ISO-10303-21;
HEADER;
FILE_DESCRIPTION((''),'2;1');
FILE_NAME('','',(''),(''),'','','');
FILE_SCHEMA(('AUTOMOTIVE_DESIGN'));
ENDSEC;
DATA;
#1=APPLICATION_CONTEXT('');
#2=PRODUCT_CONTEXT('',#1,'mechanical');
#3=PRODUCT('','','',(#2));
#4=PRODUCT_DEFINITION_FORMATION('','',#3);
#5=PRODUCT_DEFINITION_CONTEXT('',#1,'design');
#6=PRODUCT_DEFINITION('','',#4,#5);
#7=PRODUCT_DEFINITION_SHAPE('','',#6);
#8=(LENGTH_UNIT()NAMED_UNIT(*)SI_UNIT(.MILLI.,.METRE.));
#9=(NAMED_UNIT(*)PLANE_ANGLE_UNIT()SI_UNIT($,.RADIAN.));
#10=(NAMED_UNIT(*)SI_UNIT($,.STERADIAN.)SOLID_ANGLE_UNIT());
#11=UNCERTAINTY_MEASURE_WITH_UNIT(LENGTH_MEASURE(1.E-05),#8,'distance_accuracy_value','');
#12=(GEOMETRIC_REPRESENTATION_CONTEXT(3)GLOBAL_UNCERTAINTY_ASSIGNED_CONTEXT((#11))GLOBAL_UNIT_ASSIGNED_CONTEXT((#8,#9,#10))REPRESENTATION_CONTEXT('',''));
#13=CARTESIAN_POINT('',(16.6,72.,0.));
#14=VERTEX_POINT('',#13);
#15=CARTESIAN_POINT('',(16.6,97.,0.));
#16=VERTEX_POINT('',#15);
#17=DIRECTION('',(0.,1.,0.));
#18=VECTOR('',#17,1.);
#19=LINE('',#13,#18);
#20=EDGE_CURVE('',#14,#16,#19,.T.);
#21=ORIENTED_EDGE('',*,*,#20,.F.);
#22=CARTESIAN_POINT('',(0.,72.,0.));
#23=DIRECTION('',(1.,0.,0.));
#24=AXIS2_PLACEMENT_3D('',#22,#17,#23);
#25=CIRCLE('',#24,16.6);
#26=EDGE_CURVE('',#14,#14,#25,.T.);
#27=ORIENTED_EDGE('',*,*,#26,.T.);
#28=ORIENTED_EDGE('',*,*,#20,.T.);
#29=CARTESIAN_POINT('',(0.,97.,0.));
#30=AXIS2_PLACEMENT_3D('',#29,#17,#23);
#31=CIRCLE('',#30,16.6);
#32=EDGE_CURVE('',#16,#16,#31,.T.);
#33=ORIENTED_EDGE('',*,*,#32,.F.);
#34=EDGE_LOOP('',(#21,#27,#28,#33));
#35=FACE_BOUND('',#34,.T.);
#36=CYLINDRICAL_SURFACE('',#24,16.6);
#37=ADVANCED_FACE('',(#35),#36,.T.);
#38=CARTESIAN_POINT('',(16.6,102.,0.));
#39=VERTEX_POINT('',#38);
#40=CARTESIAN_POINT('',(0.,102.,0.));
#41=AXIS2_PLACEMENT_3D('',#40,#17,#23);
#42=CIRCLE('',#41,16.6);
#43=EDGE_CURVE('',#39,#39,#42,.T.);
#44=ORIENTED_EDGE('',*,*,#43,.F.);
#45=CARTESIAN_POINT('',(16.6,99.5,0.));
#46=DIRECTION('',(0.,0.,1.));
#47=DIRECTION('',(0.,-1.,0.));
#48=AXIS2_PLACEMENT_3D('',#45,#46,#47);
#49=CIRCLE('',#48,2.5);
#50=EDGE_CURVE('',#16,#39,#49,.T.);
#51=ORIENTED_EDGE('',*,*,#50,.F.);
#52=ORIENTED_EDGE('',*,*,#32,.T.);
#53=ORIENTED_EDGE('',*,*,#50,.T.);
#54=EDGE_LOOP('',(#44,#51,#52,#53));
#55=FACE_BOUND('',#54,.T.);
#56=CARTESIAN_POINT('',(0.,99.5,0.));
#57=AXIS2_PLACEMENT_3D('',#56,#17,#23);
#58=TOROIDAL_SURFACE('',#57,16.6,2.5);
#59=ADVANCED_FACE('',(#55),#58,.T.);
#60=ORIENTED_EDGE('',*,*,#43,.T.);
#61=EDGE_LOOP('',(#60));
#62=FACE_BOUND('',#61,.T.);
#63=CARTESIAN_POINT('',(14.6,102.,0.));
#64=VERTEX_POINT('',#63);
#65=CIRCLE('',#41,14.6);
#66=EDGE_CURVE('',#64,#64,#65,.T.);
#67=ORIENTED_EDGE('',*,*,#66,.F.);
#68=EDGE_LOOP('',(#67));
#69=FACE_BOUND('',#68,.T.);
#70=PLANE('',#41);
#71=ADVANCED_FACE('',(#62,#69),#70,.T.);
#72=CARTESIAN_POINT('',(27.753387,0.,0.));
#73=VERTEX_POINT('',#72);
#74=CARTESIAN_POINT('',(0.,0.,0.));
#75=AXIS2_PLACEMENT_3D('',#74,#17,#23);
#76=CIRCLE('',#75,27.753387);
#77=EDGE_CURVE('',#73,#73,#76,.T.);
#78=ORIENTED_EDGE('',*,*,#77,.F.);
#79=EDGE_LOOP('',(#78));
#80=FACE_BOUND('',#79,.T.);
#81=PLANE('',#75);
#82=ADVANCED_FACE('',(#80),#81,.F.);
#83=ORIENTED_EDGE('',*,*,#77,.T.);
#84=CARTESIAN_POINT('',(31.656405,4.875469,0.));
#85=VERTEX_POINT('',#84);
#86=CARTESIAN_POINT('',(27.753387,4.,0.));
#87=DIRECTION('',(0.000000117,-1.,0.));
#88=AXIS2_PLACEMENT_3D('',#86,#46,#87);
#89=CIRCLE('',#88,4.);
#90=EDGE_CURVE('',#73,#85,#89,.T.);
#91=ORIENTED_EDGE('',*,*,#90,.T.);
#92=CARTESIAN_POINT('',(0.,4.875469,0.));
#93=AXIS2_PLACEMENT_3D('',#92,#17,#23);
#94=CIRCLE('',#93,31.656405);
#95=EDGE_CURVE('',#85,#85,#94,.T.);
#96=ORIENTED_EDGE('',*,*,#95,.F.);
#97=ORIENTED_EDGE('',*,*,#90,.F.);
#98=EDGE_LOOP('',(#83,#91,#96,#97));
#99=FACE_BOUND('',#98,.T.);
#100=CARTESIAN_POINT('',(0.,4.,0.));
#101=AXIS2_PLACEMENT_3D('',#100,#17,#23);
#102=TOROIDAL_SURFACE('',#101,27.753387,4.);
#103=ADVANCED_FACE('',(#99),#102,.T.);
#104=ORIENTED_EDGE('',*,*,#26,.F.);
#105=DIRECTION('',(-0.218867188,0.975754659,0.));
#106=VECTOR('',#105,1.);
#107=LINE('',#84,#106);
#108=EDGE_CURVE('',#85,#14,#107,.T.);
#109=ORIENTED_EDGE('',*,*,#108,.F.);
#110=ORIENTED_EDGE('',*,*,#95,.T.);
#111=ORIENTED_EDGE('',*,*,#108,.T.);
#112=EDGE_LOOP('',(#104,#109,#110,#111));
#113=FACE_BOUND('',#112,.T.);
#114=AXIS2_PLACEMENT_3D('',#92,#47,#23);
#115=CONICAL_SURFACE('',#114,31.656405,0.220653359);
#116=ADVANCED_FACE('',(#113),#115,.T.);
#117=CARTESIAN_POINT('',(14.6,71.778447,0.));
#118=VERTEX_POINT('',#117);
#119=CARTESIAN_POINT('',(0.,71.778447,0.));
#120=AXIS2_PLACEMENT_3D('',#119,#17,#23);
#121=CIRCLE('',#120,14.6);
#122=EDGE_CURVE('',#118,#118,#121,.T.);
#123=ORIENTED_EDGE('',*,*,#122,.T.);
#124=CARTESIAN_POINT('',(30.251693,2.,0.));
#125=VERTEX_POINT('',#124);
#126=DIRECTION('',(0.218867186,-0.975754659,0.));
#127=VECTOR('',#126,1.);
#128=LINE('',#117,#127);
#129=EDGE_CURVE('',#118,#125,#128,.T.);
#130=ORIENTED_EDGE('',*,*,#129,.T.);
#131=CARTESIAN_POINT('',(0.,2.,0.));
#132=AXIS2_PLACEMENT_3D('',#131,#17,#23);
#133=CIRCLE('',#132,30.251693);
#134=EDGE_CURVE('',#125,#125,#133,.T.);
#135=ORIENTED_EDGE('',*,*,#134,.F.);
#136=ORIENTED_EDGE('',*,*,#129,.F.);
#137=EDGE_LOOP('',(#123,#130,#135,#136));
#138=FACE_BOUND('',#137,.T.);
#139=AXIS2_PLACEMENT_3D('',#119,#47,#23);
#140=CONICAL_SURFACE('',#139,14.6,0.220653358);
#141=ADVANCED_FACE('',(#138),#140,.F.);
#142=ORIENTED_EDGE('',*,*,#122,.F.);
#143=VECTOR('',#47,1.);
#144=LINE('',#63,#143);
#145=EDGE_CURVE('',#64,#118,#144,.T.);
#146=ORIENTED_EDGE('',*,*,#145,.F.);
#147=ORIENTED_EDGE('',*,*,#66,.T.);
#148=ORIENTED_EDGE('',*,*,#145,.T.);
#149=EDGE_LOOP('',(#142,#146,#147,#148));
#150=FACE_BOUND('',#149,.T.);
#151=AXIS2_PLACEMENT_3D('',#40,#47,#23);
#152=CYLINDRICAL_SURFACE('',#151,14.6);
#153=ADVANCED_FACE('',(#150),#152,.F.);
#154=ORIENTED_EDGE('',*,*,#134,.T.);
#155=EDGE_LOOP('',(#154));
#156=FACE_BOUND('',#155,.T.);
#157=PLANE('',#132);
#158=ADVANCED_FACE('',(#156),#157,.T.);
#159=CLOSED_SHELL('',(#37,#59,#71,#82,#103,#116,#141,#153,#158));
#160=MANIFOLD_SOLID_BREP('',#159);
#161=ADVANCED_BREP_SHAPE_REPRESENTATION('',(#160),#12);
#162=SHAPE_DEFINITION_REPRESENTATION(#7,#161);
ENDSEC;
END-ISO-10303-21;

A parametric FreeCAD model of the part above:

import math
import FreeCAD as App
import Part
import Sketcher

V = App.Vector

doc = App.newDocument("Part")
body = doc.addObject("PartDesign::Body", "Body")

# Sketch on XY plane
sketch1 = body.newObject("Sketcher::SketchObject", "Sketch")
sketch1.AttachmentSupport = (doc.getObject("XY_Plane"), [""])
sketch1.MapMode = "FlatFace"
sketch1.addGeometry([
    Part.ArcOfCircle(Part.Circle(V(27.753387, 4, 0), V(0, 0, 1), 4), math.radians(-89.999993), math.radians(12.642511)),  # 0
    Part.LineSegment(V(31.656405, 4.875469, 0), V(16.6, 72, 0)),  # 1
    Part.LineSegment(V(16.6, 72, 0), V(16.6, 97, 0)),  # 2
    Part.ArcOfCircle(Part.Circle(V(16.6, 99.5, 0), V(0, 0, 1), 2.5), math.radians(-90), math.radians(90)),  # 3
    Part.LineSegment(V(16.6, 102, 0), V(14.6, 102, 0)),  # 4
    Part.LineSegment(V(14.6, 102, 0), V(14.6, 71.778447, 0)),  # 5
    Part.LineSegment(V(14.6, 71.778447, 0), V(30.251693, 2, 0)),  # 6
    Part.LineSegment(V(30.251693, 2, 0), V(0, 2, 0)),  # 7
    Part.LineSegment(V(0, 2, 0), V(0, 0, 0)),  # 8
    Part.LineSegment(V(0, 0, 0), V(27.753387, 0, 0)),  # 9
], False)
sketch1.addConstraint([
    Sketcher.Constraint("Tangent", 0, 2, 1, 1),
    Sketcher.Constraint("Coincident", 1, 2, 2, 1),
    Sketcher.Constraint("Coincident", 2, 2, 3, 1),
    Sketcher.Constraint("Tangent", 3, 2, 4, 1),
    Sketcher.Constraint("Coincident", 4, 2, 5, 1),
    Sketcher.Constraint("Coincident", 5, 2, 6, 1),
    Sketcher.Constraint("Coincident", 6, 2, 7, 1),
    Sketcher.Constraint("Coincident", 7, 2, 8, 1),
    Sketcher.Constraint("Coincident", 8, 2, 9, 1),
    Sketcher.Constraint("Tangent", 9, 2, 0, 1),
    Sketcher.Constraint("Vertical", 2),
    Sketcher.Constraint("Horizontal", 4),
    Sketcher.Constraint("Vertical", 5),
    Sketcher.Constraint("Horizontal", 7),
    Sketcher.Constraint("Vertical", 8),
    Sketcher.Constraint("Horizontal", 9),
    Sketcher.Constraint("Coincident", 8, 2, -1, 1),
    Sketcher.Constraint("Parallel", 1, 6),
    Sketcher.Constraint("Vertical", 3, 3, 1, 2),
    Sketcher.Constraint("Equal", 4, 8),
    Sketcher.Constraint("Radius", 0, 4.0),
    Sketcher.Constraint("Radius", 3, 2.5),
    Sketcher.Constraint("DistanceX", 4, 2, 4, 1, 2.0),
    Sketcher.Constraint("DistanceY", 2, 1, 2, 2, 25.0),
    Sketcher.Constraint("DistanceY", -1, 1, 1, 2, 72.0),
    Sketcher.Constraint("DistanceX", -1, 1, 3, 3, 16.6),
    Sketcher.Constraint("DistanceX", 7, 2, 7, 1, 30.251693),
    Sketcher.Constraint("DistanceX", 9, 1, 9, 2, 27.753387),
])
revolution = body.newObject("PartDesign::Revolution", "Revolution")
revolution.Profile = sketch1
revolution.ReferenceAxis = (sketch1, ["V_Axis"])
revolution.Angle = 360

doc.recompute()
